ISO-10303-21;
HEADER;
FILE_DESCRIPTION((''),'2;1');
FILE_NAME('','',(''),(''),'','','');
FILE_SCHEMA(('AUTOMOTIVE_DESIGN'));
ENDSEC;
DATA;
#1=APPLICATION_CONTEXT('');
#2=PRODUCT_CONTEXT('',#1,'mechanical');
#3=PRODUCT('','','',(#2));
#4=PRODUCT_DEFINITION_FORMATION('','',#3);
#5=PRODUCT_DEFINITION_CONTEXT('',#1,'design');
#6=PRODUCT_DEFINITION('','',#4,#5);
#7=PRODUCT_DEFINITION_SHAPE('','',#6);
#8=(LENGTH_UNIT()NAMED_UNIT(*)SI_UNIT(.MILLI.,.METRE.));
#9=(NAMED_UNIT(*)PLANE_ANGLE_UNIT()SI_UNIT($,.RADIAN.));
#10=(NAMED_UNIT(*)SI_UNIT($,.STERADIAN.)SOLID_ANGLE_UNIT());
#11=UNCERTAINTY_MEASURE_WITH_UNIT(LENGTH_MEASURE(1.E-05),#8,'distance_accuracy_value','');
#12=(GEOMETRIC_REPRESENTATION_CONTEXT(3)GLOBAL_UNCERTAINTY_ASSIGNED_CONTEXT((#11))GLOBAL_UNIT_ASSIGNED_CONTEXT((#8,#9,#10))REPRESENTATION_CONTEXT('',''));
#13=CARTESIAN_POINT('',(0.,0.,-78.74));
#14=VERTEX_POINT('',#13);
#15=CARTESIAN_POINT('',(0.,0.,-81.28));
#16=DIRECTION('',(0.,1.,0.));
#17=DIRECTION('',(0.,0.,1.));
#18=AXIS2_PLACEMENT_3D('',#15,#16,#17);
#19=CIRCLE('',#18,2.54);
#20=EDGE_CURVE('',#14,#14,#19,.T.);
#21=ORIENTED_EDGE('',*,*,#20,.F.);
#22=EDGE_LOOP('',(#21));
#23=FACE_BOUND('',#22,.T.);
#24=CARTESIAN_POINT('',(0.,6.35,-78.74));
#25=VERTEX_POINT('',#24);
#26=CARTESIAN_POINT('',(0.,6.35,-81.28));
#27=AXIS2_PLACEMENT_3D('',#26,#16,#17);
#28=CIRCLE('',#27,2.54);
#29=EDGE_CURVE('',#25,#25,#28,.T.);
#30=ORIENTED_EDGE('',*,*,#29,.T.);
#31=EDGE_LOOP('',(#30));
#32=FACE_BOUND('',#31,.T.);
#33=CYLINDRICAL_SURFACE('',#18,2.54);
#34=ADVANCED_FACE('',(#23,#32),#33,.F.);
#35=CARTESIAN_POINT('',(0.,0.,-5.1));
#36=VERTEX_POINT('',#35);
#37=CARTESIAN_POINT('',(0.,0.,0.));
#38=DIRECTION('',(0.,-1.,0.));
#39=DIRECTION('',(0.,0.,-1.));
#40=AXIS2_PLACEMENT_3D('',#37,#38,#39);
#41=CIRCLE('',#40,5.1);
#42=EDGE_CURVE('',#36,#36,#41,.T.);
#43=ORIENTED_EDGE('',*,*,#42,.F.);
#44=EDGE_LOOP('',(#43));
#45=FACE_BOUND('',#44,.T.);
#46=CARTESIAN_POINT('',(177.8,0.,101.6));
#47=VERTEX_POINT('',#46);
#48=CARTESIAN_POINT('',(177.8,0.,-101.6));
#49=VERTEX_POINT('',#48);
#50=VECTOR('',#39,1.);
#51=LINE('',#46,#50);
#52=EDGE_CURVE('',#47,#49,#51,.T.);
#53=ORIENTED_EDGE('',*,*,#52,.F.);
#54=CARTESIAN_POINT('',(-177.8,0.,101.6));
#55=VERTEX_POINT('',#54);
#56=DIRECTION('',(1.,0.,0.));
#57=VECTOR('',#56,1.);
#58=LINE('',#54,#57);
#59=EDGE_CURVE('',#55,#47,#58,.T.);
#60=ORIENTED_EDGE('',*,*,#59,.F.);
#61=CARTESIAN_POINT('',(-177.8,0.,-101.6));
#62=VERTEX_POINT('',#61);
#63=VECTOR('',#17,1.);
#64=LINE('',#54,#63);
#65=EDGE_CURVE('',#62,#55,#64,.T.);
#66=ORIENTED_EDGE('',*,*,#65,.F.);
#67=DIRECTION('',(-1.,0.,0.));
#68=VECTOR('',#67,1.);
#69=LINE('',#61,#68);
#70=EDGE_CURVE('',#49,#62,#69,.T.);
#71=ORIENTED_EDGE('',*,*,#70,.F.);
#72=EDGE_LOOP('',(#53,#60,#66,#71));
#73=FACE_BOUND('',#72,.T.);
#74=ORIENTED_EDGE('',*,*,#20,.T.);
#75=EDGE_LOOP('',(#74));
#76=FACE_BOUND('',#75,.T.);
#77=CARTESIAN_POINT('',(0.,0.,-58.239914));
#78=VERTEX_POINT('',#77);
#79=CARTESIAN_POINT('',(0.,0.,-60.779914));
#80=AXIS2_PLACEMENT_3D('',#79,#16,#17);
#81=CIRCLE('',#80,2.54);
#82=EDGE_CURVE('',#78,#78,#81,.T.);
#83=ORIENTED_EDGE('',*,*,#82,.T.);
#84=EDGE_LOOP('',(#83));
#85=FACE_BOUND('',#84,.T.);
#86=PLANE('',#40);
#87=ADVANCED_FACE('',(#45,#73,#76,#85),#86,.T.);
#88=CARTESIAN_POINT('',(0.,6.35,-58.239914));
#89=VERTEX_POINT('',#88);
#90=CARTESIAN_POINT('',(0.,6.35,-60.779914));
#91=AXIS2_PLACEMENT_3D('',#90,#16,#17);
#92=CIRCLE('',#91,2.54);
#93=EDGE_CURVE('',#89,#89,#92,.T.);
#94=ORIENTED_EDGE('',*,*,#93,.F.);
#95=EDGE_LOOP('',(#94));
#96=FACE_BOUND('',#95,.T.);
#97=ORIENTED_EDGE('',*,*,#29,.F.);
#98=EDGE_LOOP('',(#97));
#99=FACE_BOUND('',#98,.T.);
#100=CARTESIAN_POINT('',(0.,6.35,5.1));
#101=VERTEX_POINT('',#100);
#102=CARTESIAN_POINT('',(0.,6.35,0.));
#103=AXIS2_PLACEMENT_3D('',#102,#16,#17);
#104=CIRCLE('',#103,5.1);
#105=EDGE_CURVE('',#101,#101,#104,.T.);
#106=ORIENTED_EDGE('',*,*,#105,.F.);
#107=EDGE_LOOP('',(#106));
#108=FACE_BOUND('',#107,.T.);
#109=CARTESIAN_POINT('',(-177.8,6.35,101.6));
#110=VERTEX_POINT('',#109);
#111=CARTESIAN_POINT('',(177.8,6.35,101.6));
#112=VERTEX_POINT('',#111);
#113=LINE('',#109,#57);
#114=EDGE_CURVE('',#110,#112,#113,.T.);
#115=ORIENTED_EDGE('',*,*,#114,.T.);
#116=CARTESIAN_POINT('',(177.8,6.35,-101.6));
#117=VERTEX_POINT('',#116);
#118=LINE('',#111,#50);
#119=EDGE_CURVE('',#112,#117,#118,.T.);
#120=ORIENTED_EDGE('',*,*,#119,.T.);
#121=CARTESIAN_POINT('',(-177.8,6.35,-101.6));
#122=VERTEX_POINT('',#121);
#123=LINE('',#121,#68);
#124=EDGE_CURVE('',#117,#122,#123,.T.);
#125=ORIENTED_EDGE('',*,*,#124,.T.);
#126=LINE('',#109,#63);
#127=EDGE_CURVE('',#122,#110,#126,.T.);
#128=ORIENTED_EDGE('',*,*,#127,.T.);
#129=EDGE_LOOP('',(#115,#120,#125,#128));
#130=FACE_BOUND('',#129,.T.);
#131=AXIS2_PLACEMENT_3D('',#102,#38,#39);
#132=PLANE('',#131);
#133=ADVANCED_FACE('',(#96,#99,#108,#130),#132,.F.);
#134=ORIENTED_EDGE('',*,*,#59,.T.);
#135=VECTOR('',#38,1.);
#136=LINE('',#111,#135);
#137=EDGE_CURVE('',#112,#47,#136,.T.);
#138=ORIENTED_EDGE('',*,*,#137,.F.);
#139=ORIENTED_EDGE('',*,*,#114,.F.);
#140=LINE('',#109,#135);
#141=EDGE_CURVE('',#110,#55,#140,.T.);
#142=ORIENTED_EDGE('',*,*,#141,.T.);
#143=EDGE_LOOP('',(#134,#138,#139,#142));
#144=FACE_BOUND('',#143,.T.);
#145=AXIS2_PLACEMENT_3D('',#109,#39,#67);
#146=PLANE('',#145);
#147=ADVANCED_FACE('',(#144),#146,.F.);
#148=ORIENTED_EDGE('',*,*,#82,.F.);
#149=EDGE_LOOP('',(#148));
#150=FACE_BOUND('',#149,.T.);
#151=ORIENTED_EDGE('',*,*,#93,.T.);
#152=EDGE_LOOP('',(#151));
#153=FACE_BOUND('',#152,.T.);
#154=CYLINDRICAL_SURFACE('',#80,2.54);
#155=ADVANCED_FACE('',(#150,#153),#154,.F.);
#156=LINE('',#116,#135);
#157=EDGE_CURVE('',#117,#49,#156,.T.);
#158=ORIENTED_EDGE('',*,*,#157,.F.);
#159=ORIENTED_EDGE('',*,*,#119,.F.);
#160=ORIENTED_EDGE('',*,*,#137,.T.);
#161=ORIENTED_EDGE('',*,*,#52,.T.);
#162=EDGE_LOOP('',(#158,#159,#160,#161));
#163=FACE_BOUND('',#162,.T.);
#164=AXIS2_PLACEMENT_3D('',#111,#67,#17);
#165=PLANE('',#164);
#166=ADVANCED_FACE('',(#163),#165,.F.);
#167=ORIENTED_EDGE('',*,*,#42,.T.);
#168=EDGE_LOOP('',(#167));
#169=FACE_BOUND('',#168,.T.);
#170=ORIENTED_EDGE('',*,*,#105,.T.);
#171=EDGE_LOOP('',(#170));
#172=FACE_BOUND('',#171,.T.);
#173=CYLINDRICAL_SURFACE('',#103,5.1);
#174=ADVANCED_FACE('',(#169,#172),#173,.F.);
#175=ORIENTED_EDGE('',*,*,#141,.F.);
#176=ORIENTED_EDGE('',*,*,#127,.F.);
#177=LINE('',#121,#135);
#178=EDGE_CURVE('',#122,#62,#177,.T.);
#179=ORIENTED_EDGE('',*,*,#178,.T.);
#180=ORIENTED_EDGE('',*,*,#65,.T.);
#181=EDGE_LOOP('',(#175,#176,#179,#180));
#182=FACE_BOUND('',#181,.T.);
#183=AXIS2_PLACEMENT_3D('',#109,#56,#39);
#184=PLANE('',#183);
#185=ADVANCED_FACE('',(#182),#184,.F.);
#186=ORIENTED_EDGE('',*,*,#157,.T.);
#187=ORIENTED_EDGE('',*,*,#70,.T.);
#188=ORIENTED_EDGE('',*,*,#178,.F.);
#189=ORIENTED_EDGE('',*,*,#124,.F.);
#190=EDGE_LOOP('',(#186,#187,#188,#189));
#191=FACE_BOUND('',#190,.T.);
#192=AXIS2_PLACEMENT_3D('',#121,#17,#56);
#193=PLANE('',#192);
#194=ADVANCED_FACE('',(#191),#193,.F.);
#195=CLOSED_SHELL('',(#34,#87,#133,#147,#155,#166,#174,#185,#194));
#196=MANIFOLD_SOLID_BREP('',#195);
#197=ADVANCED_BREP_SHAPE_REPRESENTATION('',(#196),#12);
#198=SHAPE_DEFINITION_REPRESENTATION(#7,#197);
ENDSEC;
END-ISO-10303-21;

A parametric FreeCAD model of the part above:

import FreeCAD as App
import Part
import Sketcher
from FreeCAD import Vector
Q = App.Units.Quantity

doc = App.newDocument("Part")
body = doc.addObject("PartDesign::Body", "Body")

# Sketch on XZ plane
sketch1 = body.newObject("Sketcher::SketchObject", "Sketch")
sketch1.AttachmentSupport = (doc.getObject("XZ_Plane"), [""])
sketch1.MapMode = "FlatFace"
sketch1.addGeometry([
    Part.LineSegment(Vector(-178, -102, 0), Vector(-178, 102, 0)),
    Part.LineSegment(Vector(-178, 102, 0), Vector(178, 102, 0)),
    Part.LineSegment(Vector(178, 102, 0), Vector(178, -102, 0)),
    Part.LineSegment(Vector(178, -102, 0), Vector(-178, -102, 0)),
], False)
sketch1.addConstraint([
    Sketcher.Constraint("Coincident", 0, 2, 1, 1),
    Sketcher.Constraint("Coincident", 1, 2, 2, 1),
    Sketcher.Constraint("Coincident", 2, 2, 3, 1),
    Sketcher.Constraint("Coincident", 3, 2, 0, 1),
    Sketcher.Constraint("Vertical", 0),
    Sketcher.Constraint("Horizontal", 1),
    Sketcher.Constraint("Vertical", 2),
    Sketcher.Constraint("Horizontal", 3),
    Sketcher.Constraint("Symmetric", 0, 2, 2, 2, -1, 1),
    Sketcher.Constraint("DistanceX", 1, 1, 1, 2, Q("14 in")),
    Sketcher.Constraint("DistanceY", 0, 1, 0, 2, Q("8 in")),
])
pad1 = body.newObject("PartDesign::Pad", "Pad")
pad1.Profile = sketch1
pad1.Length = Q("0.25 in")
pad1.Reversed = True

# Sketch on XZ plane
sketch2 = body.newObject("Sketcher::SketchObject", "Sketch001")
sketch2.AttachmentSupport = (doc.getObject("XZ_Plane"), [""])
sketch2.MapMode = "FlatFace"
sketch2.AttachmentOffset = App.Placement(Vector(0, 0, -0.25 * 25.4), App.Rotation())
sketch2.addGeometry([
    Part.Circle(Vector(0, -81.3, 0), Vector(0, 0, 1), 2.5),
    Part.Circle(Vector(0, -60.8, 0), Vector(0, 0, 1), 2.5),
], False)
sketch2.addConstraint([
    Sketcher.Constraint("Equal", 0, 1),
    Sketcher.Constraint("PointOnObject", 0, 3, -2),
    Sketcher.Constraint("PointOnObject", 1, 3, -2),
    Sketcher.Constraint("Diameter", 0, Q("0.2 in")),
    Sketcher.Constraint("DistanceY", 0, 3, -1, 1, Q("3.2 in")),
    Sketcher.Constraint("DistanceY", 1, 3, -1, 1, 60.779914),
])
pocket1 = body.newObject("PartDesign::Pocket", "Pocket")
pocket1.Profile = sketch2
pocket1.Type = "ThroughAll"
pocket1.Reversed = True

# Sketch on XZ plane
sketch3 = body.newObject("Sketcher::SketchObject", "Sketch002")
sketch3.AttachmentSupport = (doc.getObject("XZ_Plane"), [""])
sketch3.MapMode = "FlatFace"
sketch3.AttachmentOffset = App.Placement(Vector(0, 0, -0.25 * 25.4), App.Rotation())
sketch3.addGeometry(Part.Circle(Vector(0, 0, 0), Vector(0, 0, 1), 5), False)
sketch3.addConstraint([
    Sketcher.Constraint("Coincident", 0, 3, -1, 1),
    Sketcher.Constraint("Diameter", 0, 10.2),
])
doc.recompute()
hole = body.newObject("PartDesign::Hole", "Hole")
hole.Profile = sketch3
hole.ThreadType = "None"
hole.Diameter = 10.2
hole.DepthType = "Dimension"
hole.Depth = Q("0.75 in")
hole.DrillPoint = "Angled"
hole.DrillPointAngle = 118
hole.Reversed = True

doc.recompute()
